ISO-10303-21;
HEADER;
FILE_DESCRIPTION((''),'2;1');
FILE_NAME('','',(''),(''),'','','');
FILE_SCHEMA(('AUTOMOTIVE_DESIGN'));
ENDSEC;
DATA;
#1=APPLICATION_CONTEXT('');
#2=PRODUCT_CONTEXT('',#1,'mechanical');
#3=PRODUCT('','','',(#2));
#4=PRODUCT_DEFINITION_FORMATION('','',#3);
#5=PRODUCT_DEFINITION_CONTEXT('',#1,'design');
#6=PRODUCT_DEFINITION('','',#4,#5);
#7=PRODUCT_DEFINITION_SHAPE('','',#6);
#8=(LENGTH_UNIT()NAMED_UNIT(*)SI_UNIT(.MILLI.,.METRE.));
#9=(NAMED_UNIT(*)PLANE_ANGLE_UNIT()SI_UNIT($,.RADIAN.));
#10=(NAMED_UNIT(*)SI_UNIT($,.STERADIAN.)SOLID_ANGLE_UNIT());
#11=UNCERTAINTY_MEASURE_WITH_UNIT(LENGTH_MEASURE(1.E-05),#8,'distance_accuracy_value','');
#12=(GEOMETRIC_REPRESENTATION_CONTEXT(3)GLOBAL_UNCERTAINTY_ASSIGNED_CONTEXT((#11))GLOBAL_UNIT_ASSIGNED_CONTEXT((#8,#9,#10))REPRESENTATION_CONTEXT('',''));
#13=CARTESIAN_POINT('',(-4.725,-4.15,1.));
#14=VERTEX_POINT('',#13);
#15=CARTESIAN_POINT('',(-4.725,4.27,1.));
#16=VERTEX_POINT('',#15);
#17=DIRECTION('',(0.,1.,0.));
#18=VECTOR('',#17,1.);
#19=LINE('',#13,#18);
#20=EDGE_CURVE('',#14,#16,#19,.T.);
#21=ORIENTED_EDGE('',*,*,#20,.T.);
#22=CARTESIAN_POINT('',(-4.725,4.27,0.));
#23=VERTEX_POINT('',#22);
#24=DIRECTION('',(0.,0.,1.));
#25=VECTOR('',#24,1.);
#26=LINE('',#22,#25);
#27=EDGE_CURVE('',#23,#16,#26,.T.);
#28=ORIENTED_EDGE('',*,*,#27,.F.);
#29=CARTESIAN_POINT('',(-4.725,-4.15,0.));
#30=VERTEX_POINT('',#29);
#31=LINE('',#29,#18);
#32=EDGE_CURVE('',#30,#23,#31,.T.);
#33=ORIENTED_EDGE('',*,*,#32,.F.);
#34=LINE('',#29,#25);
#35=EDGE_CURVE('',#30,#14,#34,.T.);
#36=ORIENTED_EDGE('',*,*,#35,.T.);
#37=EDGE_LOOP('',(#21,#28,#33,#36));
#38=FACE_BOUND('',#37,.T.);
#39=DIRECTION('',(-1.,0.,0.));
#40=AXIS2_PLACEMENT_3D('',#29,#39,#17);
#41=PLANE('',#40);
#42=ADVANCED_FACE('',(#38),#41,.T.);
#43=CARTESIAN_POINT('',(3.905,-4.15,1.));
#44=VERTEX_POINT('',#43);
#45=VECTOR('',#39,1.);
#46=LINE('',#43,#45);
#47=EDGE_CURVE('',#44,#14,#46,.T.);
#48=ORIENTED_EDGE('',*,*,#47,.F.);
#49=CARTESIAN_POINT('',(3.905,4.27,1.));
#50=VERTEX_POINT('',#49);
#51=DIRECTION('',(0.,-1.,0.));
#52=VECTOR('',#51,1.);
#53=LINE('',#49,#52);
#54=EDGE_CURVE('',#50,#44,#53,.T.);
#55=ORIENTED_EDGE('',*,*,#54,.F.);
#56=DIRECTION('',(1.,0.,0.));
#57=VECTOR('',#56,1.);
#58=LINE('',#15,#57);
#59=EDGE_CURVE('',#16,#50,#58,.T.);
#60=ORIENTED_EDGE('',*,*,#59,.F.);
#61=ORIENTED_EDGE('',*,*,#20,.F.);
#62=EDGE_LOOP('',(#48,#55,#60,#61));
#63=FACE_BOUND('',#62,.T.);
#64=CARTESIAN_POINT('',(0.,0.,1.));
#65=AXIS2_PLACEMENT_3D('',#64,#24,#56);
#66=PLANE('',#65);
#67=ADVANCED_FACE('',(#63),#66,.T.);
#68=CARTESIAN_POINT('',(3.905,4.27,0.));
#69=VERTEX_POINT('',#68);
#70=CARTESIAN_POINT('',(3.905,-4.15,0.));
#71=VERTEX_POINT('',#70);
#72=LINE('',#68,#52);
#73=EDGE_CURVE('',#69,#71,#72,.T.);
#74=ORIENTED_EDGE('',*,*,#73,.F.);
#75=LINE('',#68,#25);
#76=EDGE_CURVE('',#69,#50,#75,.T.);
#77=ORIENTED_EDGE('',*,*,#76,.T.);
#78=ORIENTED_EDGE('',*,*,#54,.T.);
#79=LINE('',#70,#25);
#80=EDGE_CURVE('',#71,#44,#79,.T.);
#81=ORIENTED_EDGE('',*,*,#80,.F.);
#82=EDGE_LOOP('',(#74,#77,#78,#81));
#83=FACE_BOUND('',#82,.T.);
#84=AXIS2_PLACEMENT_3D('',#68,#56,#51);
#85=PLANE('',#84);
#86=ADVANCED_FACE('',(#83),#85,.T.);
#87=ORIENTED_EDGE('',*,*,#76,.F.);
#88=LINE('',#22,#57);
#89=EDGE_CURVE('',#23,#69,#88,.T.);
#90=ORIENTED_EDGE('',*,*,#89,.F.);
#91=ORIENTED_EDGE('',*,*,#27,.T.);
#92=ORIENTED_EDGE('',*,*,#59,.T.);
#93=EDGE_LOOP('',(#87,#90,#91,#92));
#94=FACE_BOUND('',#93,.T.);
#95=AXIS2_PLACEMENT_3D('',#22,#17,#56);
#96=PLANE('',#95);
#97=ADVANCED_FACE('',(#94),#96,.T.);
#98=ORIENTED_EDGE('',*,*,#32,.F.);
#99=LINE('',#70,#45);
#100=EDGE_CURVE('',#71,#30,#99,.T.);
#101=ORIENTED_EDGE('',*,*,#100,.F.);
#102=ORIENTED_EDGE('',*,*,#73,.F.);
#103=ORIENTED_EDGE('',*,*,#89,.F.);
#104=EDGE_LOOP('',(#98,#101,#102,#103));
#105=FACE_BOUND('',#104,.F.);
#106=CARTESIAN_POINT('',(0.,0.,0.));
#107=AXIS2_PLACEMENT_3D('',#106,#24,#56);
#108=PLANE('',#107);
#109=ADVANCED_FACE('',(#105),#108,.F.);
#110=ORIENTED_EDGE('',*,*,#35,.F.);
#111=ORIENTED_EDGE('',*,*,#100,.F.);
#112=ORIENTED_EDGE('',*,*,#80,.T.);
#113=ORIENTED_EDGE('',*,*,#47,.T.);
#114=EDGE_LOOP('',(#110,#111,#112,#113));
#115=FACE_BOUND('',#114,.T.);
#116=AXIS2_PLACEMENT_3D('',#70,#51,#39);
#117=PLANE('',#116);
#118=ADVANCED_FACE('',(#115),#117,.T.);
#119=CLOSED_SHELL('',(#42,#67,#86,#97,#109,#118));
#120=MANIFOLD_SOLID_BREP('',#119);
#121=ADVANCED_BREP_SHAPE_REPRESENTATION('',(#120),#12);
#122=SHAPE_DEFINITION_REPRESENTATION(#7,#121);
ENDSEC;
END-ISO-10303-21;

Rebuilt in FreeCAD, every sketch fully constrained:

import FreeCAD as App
import Part
import Sketcher

V = App.Vector
Q = App.Units.Quantity


def add_polygon(sketch, points):
    """Adds a closed chain of lines whose ends are joined by coincident constraints."""
    first, n = sketch.GeometryCount, len(points)
    for a, b in zip(points, points[1:] + points[:1]):
        sketch.addGeometry(Part.LineSegment(App.Vector(*a, 0), App.Vector(*b, 0)), False)
    for i in range(n):
        sketch.addConstraint(Sketcher.Constraint("Coincident", first + i, 2, first + (i + 1) % n, 1))

doc = App.newDocument("Part")
body = doc.addObject("PartDesign::Body", "Body")

# Sketch on XY plane
sketch1 = body.newObject("Sketcher::SketchObject", "Sketch")
sketch1.AttachmentSupport = (doc.getObject("XY_Plane"), [""])
sketch1.MapMode = "FlatFace"
add_polygon(sketch1, [(4, 4), (-5, 4), (-5, -4), (4, -4)])  # lines 0-3
sketch1.addConstraint([
    Sketcher.Constraint("Horizontal", 0),
    Sketcher.Constraint("Vertical", 1),
    Sketcher.Constraint("Horizontal", 2),
    Sketcher.Constraint("Vertical", 3),
    Sketcher.Constraint("DistanceX", 0, 2, 0, 1, Q("8.63 mm")),
    Sketcher.Constraint("DistanceY", 1, 2, 1, 1, Q("8.42 mm")),
    Sketcher.Constraint("DistanceY", -1, 1, 0, 2, Q("4.27 mm")),
    Sketcher.Constraint("DistanceX", 0, 2, -1, 1, Q("4.725 mm")),
])
pad1 = body.newObject("PartDesign::Pad", "Pad")
pad1.Profile = sketch1
pad1.Length = 1

doc.recompute()
